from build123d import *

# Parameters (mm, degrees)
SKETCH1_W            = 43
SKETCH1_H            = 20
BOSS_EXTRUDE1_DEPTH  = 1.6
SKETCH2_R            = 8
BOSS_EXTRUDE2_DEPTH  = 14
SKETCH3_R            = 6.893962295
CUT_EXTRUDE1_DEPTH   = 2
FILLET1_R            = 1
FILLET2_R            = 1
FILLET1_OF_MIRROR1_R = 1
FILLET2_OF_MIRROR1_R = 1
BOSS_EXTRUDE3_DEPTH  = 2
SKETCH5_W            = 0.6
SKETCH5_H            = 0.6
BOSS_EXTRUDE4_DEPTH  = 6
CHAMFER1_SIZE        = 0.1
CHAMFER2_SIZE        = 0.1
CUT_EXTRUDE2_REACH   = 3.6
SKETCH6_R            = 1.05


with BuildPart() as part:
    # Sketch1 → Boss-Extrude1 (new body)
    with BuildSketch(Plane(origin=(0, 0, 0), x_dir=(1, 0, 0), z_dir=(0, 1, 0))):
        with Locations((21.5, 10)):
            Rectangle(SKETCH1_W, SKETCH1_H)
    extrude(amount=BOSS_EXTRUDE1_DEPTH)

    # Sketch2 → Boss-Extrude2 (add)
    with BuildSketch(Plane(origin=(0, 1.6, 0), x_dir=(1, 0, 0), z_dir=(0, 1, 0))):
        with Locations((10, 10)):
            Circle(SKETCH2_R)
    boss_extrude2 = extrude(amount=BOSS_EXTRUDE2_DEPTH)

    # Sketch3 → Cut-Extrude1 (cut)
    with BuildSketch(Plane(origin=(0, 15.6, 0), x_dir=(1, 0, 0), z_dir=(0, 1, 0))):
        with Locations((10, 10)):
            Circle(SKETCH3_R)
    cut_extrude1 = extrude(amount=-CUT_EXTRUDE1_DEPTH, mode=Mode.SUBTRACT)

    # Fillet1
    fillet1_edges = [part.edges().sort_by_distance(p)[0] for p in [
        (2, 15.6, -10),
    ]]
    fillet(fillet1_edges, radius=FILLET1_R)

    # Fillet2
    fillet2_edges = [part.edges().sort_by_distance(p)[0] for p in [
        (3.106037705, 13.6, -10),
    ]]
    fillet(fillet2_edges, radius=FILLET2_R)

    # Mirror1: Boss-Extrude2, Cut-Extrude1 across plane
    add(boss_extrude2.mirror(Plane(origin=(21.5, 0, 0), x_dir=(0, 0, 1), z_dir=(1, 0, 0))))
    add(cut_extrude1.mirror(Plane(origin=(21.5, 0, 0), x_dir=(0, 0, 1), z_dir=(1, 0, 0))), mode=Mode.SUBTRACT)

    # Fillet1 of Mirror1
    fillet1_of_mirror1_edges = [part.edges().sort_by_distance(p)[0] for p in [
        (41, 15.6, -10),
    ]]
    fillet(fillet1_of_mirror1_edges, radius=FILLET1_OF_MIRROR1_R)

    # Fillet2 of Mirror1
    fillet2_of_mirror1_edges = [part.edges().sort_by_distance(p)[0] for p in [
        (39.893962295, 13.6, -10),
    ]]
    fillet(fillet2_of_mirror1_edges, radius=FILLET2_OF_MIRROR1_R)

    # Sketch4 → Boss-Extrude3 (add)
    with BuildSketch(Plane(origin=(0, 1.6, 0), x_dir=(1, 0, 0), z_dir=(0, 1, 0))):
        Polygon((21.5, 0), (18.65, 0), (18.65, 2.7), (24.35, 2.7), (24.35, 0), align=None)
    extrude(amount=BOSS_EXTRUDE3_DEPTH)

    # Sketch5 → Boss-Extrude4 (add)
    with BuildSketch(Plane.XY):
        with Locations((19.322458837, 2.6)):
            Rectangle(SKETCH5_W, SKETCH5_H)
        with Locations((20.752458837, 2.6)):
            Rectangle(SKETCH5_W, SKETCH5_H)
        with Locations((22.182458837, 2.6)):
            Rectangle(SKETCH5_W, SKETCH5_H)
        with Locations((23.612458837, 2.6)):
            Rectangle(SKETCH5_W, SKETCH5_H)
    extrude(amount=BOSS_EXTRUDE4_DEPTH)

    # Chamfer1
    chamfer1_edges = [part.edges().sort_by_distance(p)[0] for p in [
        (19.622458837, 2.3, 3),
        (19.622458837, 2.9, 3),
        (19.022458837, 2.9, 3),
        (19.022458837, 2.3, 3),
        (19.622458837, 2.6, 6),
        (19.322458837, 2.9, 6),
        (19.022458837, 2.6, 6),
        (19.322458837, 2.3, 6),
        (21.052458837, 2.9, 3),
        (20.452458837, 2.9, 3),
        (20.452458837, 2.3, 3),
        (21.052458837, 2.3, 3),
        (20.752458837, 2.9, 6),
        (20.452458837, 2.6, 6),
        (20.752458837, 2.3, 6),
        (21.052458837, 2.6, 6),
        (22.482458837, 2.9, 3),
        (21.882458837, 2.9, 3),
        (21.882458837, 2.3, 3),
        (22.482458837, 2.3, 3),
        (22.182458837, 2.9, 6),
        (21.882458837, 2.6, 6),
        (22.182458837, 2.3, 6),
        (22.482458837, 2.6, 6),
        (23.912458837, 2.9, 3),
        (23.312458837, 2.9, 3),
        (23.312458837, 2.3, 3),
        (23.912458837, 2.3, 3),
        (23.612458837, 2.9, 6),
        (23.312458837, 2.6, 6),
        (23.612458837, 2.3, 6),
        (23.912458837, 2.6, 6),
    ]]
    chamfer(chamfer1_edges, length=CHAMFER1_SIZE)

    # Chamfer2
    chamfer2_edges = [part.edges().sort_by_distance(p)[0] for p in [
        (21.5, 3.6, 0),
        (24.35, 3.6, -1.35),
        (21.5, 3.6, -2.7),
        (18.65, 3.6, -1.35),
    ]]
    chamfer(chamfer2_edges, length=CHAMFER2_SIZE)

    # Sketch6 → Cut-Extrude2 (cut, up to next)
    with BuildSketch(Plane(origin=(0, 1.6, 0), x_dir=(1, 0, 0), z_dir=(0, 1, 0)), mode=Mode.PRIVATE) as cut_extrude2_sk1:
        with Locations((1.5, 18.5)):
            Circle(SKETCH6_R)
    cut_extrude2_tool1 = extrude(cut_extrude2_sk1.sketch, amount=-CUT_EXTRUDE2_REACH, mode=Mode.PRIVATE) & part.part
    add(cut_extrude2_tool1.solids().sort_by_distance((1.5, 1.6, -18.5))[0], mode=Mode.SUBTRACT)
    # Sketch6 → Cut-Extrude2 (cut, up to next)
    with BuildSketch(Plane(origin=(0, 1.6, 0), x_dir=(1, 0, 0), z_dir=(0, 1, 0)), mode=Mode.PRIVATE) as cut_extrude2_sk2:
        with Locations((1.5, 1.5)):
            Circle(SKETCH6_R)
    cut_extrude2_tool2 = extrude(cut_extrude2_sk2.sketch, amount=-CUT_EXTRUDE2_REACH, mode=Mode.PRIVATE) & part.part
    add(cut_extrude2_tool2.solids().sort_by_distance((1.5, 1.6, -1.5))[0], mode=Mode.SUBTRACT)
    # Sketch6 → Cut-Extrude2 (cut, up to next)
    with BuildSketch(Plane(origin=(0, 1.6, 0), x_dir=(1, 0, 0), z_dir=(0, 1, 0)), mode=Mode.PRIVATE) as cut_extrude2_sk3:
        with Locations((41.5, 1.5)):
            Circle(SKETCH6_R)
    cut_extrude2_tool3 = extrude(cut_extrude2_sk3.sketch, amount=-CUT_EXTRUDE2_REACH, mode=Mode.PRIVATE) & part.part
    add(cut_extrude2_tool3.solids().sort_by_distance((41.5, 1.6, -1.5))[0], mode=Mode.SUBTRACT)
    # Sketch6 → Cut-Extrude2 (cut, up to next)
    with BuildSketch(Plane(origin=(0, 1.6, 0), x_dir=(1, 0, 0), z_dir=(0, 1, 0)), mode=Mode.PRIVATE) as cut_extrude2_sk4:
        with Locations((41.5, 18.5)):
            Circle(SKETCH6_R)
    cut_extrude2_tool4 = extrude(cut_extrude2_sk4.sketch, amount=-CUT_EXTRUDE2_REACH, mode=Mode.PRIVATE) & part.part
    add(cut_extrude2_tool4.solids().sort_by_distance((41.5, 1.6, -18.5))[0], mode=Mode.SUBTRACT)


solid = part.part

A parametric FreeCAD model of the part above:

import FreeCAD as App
import Part
import Sketcher
from FreeCAD import Vector


def edges_at(feature, points):
    """Names of the edges that pass closest to the given points."""
    edges = feature.Shape.Edges
    near = lambda p: min(range(len(edges)), key=lambda i: edges[i].distToShape(Part.Vertex(*p))[0])
    return sorted({f"Edge{near(p) + 1}" for p in points})


def add_polygon(sketch, points):
    """Adds a closed chain of lines whose ends are joined by coincident constraints."""
    first, n = sketch.GeometryCount, len(points)
    for a, b in zip(points, points[1:] + points[:1]):
        sketch.addGeometry(Part.LineSegment(App.Vector(*a, 0), App.Vector(*b, 0)), False)
    for i in range(n):
        sketch.addConstraint(Sketcher.Constraint("Coincident", first + i, 2, first + (i + 1) % n, 1))

doc = App.newDocument("Part")
body = doc.addObject("PartDesign::Body", "Body")

# Sketch on XZ plane
sketch1 = body.newObject("Sketcher::SketchObject", "Sketch")
sketch1.AttachmentSupport = (doc.getObject("XZ_Plane"), [""])
sketch1.MapMode = "FlatFace"
add_polygon(sketch1, [(0, -20), (0, 0), (43, 0), (43, -20)])  # lines 0-3
sketch1.addConstraint(Sketcher.Constraint("Vertical", 0))
sketch1.addConstraint(Sketcher.Constraint("Horizontal", 1))
sketch1.addConstraint(Sketcher.Constraint("Vertical", 2))
sketch1.addConstraint(Sketcher.Constraint("Horizontal", 3))
sketch1.addConstraint(Sketcher.Constraint("Coincident", 0, 2, -1, 1))
sketch1.addConstraint(Sketcher.Constraint("DistanceX", 1, 1, 1, 2, 43.0))
sketch1.addConstraint(Sketcher.Constraint("DistanceY", 0, 1, 0, 2, 20.0))
pad1 = body.newObject("PartDesign::Pad", "Pad")
pad1.Profile = sketch1
pad1.Length = 1.6
pad1.Reversed = True

# Sketch on XZ plane
sketch2 = body.newObject("Sketcher::SketchObject", "Sketch001")
sketch2.AttachmentSupport = (doc.getObject("XZ_Plane"), [""])
sketch2.MapMode = "FlatFace"
sketch2.AttachmentOffset = App.Placement(Vector(0, 0, -1.6), App.Rotation())
sketch2.addGeometry(Part.Circle(Vector(10, -10, 0), Vector(0, 0, 1), 8), False)
sketch2.addConstraint(Sketcher.Constraint("Diameter", 0, 16.0))
sketch2.addConstraint(Sketcher.Constraint("DistanceX", -1, 1, 0, 3, 10.0))
sketch2.addConstraint(Sketcher.Constraint("DistanceY", 0, 3, -1, 1, 10.0))
pad2 = body.newObject("PartDesign::Pad", "Pad001")
pad2.Profile = sketch2
pad2.Length = 14
pad2.Reversed = True

# Sketch on XZ plane
sketch3 = body.newObject("Sketcher::SketchObject", "Sketch002")
sketch3.AttachmentSupport = (doc.getObject("XZ_Plane"), [""])
sketch3.MapMode = "FlatFace"
sketch3.AttachmentOffset = App.Placement(Vector(0, 0, -15.6), App.Rotation())
sketch3.addGeometry(Part.Circle(Vector(10, -10, 0), Vector(0, 0, 1), 7), False)
sketch3.addConstraint(Sketcher.Constraint("DistanceX", -1, 1, 0, 3, 10.0))
sketch3.addConstraint(Sketcher.Constraint("DistanceY", 0, 3, -1, 1, 10.0))
sketch3.addConstraint(Sketcher.Constraint("Diameter", 0, 13.787925))
pocket1 = body.newObject("PartDesign::Pocket", "Pocket")
pocket1.Profile = sketch3
pocket1.Length = 2
pocket1.Reversed = True
doc.recompute()

fillet = body.newObject("PartDesign::Fillet", "Fillet")
fillet.Base = (pocket1, edges_at(pocket1, [(2, 15.6, -10)]))
fillet.Radius = 1
doc.recompute()

fillet2 = body.newObject("PartDesign::Fillet", "Fillet001")
fillet2.Base = (fillet, edges_at(fillet, [(3.106, 13.6, -10)]))
fillet2.Radius = 1
doc.recompute()

datumplane = body.newObject("PartDesign::Plane", "DatumPlane")
datumplane.AttachmentSupport = (doc.getObject("YZ_Plane"), [""])
datumplane.MapMode = "FlatFace"
datumplane.AttachmentOffset = App.Placement(Vector(0, 0, 21.5), App.Rotation())
mirrored = body.newObject("PartDesign::Mirrored", "Mirrored")
mirrored.Originals = [pad2, pocket1]
mirrored.MirrorPlane = (datumplane, [""])
body.Tip = mirrored
doc.recompute()

fillet3 = body.newObject("PartDesign::Fillet", "Fillet002")
fillet3.Base = (mirrored, edges_at(mirrored, [(41, 15.6, -10)]))
fillet3.Radius = 1
doc.recompute()

fillet4 = body.newObject("PartDesign::Fillet", "Fillet003")
fillet4.Base = (fillet3, edges_at(fillet3, [(39.894, 13.6, -10)]))
fillet4.Radius = 1

# Sketch on XZ plane
sketch4 = body.newObject("Sketcher::SketchObject", "Sketch003")
sketch4.AttachmentSupport = (doc.getObject("XZ_Plane"), [""])
sketch4.MapMode = "FlatFace"
sketch4.AttachmentOffset = App.Placement(Vector(0, 0, -1.6), App.Rotation())
add_polygon(sketch4, [(18.6, 0), (24.4, 0), (24.4, -2.7), (18.6, -2.7)])  # lines 0-3
sketch4.addConstraint(Sketcher.Constraint("Horizontal", 0))
sketch4.addConstraint(Sketcher.Constraint("Vertical", 1))
sketch4.addConstraint(Sketcher.Constraint("Horizontal", 2))
sketch4.addConstraint(Sketcher.Constraint("Vertical", 3))
sketch4.addConstraint(Sketcher.Constraint("PointOnObject", 0, 2, -1))
sketch4.addConstraint(Sketcher.Constraint("DistanceX", 0, 1, 0, 2, 5.7))
sketch4.addConstraint(Sketcher.Constraint("DistanceY", 1, 2, 1, 1, 2.7))
sketch4.addConstraint(Sketcher.Constraint("DistanceX", -1, 1, 0, 2, 24.35))
pad3 = body.newObject("PartDesign::Pad", "Pad002")
pad3.Profile = sketch4
pad3.Length = 2
pad3.Reversed = True

# Sketch on XY plane
sketch5 = body.newObject("Sketcher::SketchObject", "Sketch004")
sketch5.AttachmentSupport = (doc.getObject("XY_Plane"), [""])
sketch5.MapMode = "FlatFace"
add_polygon(sketch5, [(19, 2.9), (19, 2.3), (19.6, 2.3), (19.6, 2.9)])  # lines 0-3
add_polygon(sketch5, [(20.5, 2.9), (20.5, 2.3), (21.1, 2.3), (21.1, 2.9)])  # lines 4-7
add_polygon(sketch5, [(21.9, 2.9), (21.9, 2.3), (22.5, 2.3), (22.5, 2.9)])  # lines 8-11
add_polygon(sketch5, [(23.3, 2.9), (23.3, 2.3), (23.9, 2.3), (23.9, 2.9)])  # lines 12-15
sketch5.addConstraint(Sketcher.Constraint("Vertical", 0))
sketch5.addConstraint(Sketcher.Constraint("Horizontal", 1))
sketch5.addConstraint(Sketcher.Constraint("Vertical", 2))
sketch5.addConstraint(Sketcher.Constraint("Horizontal", 3))
sketch5.addConstraint(Sketcher.Constraint("Vertical", 4))
sketch5.addConstraint(Sketcher.Constraint("Horizontal", 5))
sketch5.addConstraint(Sketcher.Constraint("Vertical", 6))
sketch5.addConstraint(Sketcher.Constraint("Horizontal", 7))
sketch5.addConstraint(Sketcher.Constraint("Vertical", 8))
sketch5.addConstraint(Sketcher.Constraint("Horizontal", 9))
sketch5.addConstraint(Sketcher.Constraint("Vertical", 10))
sketch5.addConstraint(Sketcher.Constraint("Horizontal", 11))
sketch5.addConstraint(Sketcher.Constraint("Vertical", 12))
sketch5.addConstraint(Sketcher.Constraint("Horizontal", 13))
sketch5.addConstraint(Sketcher.Constraint("Vertical", 14))
sketch5.addConstraint(Sketcher.Constraint("Horizontal", 15))
sketch5.addConstraint(Sketcher.Constraint("Horizontal", 1, 2, 4, 2))
sketch5.addConstraint(Sketcher.Constraint("Horizontal", 3, 2, 6, 2))
sketch5.addConstraint(Sketcher.Constraint("Horizontal", 5, 2, 8, 2))
sketch5.addConstraint(Sketcher.Constraint("Horizontal", 7, 2, 10, 2))
sketch5.addConstraint(Sketcher.Constraint("Horizontal", 9, 2, 12, 2))
sketch5.addConstraint(Sketcher.Constraint("Horizontal", 11, 2, 14, 2))
sketch5.addConstraint(Sketcher.Constraint("Equal", 3, 5))
sketch5.addConstraint(Sketcher.Constraint("Equal", 7, 9))
sketch5.addConstraint(Sketcher.Constraint("Equal", 11, 13))
sketch5.addConstraint(Sketcher.Constraint("Equal", 15, 0))
sketch5.addConstraint(Sketcher.Constraint("DistanceX", 1, 1, 1, 2, 0.6))
sketch5.addConstraint(Sketcher.Constraint("DistanceY", -1, 1, 0, 2, 2.3))
sketch5.addConstraint(Sketcher.Constraint("DistanceX", 1, 2, 4, 2, 0.83))
sketch5.addConstraint(Sketcher.Constraint("DistanceX", 5, 2, 8, 2, 0.83))
sketch5.addConstraint(Sketcher.Constraint("DistanceX", 9, 2, 12, 2, 0.83))
sketch5.addConstraint(Sketcher.Constraint("DistanceX", -1, 1, 0, 2, 19.022459))
pad4 = body.newObject("PartDesign::Pad", "Pad003")
pad4.Profile = sketch5
pad4.Length = 6
doc.recompute()

chamfer = body.newObject("PartDesign::Chamfer", "Chamfer")
chamfer.Base = (pad4, edges_at(pad4, [
    (19.622, 2.3, 3),
    (19.622, 2.9, 3),
    (19.022, 2.9, 3),
    (19.022, 2.3, 3),
    (19.622, 2.6, 6),
    (19.322, 2.9, 6),
    (19.022, 2.6, 6),
    (19.322, 2.3, 6),
    (21.052, 2.9, 3),
    (20.452, 2.9, 3),
    (20.452, 2.3, 3),
    (21.052, 2.3, 3),
    (20.752, 2.9, 6),
    (20.452, 2.6, 6),
    (20.752, 2.3, 6),
    (21.052, 2.6, 6),
    (22.482, 2.9, 3),
    (21.882, 2.9, 3),
    (21.882, 2.3, 3),
    (22.482, 2.3, 3),
    (22.182, 2.9, 6),
    (21.882, 2.6, 6),
    (22.182, 2.3, 6),
    (22.482, 2.6, 6),
    (23.912, 2.9, 3),
    (23.312, 2.9, 3),
    (23.312, 2.3, 3),
    (23.912, 2.3, 3),
    (23.612, 2.9, 6),
    (23.312, 2.6, 6),
    (23.612, 2.3, 6),
    (23.912, 2.6, 6),
]))
chamfer.Size = 0.1
doc.recompute()

chamfer2 = body.newObject("PartDesign::Chamfer", "Chamfer001")
chamfer2.Base = (chamfer, edges_at(chamfer, [
    (21.5, 3.6, 0),
    (24.35, 3.6, -1.35),
    (21.5, 3.6, -2.7),
    (18.65, 3.6, -1.35),
]))
chamfer2.Size = 0.1

# Sketch on XZ plane
sketch6 = body.newObject("Sketcher::SketchObject", "Sketch005")
sketch6.AttachmentSupport = (doc.getObject("XZ_Plane"), [""])
sketch6.MapMode = "FlatFace"
sketch6.AttachmentOffset = App.Placement(Vector(0, 0, -1.6), App.Rotation())
sketch6.addGeometry(Part.Circle(Vector(1.5, -18.5, 0), Vector(0, 0, 1), 1.1), False)
sketch6.addConstraint(Sketcher.Constraint("Diameter", 0, 2.1))
sketch6.addConstraint(Sketcher.Constraint("DistanceX", -1, 1, 0, 3, 1.5))
sketch6.addConstraint(Sketcher.Constraint("DistanceY", 0, 3, -1, 1, 18.5))
pocket2 = body.newObject("PartDesign::Pocket", "Pocket001")
pocket2.Profile = sketch6
pocket2.Type = "UpToFirst"
pocket2.Reversed = True

# Sketch on XZ plane
sketch7 = body.newObject("Sketcher::SketchObject", "Sketch006")
sketch7.AttachmentSupport = (doc.getObject("XZ_Plane"), [""])
sketch7.MapMode = "FlatFace"
sketch7.AttachmentOffset = App.Placement(Vector(0, 0, -1.6), App.Rotation())
sketch7.addGeometry(Part.Circle(Vector(1.5, -1.5, 0), Vector(0, 0, 1), 1.1), False)
sketch7.addConstraint(Sketcher.Constraint("Diameter", 0, 2.1))
sketch7.addConstraint(Sketcher.Constraint("DistanceX", -1, 1, 0, 3, 1.5))
sketch7.addConstraint(Sketcher.Constraint("DistanceY", 0, 3, -1, 1, 1.5))
pocket3 = body.newObject("PartDesign::Pocket", "Pocket002")
pocket3.Profile = sketch7
pocket3.Type = "UpToFirst"
pocket3.Reversed = True

# Sketch on XZ plane
sketch8 = body.newObject("Sketcher::SketchObject", "Sketch007")
sketch8.AttachmentSupport = (doc.getObject("XZ_Plane"), [""])
sketch8.MapMode = "FlatFace"
sketch8.AttachmentOffset = App.Placement(Vector(0, 0, -1.6), App.Rotation())
sketch8.addGeometry(Part.Circle(Vector(41.5, -1.5, 0), Vector(0, 0, 1), 1.1), False)
sketch8.addConstraint(Sketcher.Constraint("Diameter", 0, 2.1))
sketch8.addConstraint(Sketcher.Constraint("DistanceX", -1, 1, 0, 3, 41.5))
sketch8.addConstraint(Sketcher.Constraint("DistanceY", 0, 3, -1, 1, 1.5))
pocket4 = body.newObject("PartDesign::Pocket", "Pocket003")
pocket4.Profile = sketch8
pocket4.Type = "UpToFirst"
pocket4.Reversed = True

# Sketch on XZ plane
sketch9 = body.newObject("Sketcher::SketchObject", "Sketch008")
sketch9.AttachmentSupport = (doc.getObject("XZ_Plane"), [""])
sketch9.MapMode = "FlatFace"
sketch9.AttachmentOffset = App.Placement(Vector(0, 0, -1.6), App.Rotation())
sketch9.addGeometry(Part.Circle(Vector(41.5, -18.5, 0), Vector(0, 0, 1), 1.1), False)
sketch9.addConstraint(Sketcher.Constraint("Diameter", 0, 2.1))
sketch9.addConstraint(Sketcher.Constraint("DistanceX", -1, 1, 0, 3, 41.5))
sketch9.addConstraint(Sketcher.Constraint("DistanceY", 0, 3, -1, 1, 18.5))
pocket5 = body.newObject("PartDesign::Pocket", "Pocket004")
pocket5.Profile = sketch9
pocket5.Type = "UpToFirst"
pocket5.Reversed = True

doc.recompute()
